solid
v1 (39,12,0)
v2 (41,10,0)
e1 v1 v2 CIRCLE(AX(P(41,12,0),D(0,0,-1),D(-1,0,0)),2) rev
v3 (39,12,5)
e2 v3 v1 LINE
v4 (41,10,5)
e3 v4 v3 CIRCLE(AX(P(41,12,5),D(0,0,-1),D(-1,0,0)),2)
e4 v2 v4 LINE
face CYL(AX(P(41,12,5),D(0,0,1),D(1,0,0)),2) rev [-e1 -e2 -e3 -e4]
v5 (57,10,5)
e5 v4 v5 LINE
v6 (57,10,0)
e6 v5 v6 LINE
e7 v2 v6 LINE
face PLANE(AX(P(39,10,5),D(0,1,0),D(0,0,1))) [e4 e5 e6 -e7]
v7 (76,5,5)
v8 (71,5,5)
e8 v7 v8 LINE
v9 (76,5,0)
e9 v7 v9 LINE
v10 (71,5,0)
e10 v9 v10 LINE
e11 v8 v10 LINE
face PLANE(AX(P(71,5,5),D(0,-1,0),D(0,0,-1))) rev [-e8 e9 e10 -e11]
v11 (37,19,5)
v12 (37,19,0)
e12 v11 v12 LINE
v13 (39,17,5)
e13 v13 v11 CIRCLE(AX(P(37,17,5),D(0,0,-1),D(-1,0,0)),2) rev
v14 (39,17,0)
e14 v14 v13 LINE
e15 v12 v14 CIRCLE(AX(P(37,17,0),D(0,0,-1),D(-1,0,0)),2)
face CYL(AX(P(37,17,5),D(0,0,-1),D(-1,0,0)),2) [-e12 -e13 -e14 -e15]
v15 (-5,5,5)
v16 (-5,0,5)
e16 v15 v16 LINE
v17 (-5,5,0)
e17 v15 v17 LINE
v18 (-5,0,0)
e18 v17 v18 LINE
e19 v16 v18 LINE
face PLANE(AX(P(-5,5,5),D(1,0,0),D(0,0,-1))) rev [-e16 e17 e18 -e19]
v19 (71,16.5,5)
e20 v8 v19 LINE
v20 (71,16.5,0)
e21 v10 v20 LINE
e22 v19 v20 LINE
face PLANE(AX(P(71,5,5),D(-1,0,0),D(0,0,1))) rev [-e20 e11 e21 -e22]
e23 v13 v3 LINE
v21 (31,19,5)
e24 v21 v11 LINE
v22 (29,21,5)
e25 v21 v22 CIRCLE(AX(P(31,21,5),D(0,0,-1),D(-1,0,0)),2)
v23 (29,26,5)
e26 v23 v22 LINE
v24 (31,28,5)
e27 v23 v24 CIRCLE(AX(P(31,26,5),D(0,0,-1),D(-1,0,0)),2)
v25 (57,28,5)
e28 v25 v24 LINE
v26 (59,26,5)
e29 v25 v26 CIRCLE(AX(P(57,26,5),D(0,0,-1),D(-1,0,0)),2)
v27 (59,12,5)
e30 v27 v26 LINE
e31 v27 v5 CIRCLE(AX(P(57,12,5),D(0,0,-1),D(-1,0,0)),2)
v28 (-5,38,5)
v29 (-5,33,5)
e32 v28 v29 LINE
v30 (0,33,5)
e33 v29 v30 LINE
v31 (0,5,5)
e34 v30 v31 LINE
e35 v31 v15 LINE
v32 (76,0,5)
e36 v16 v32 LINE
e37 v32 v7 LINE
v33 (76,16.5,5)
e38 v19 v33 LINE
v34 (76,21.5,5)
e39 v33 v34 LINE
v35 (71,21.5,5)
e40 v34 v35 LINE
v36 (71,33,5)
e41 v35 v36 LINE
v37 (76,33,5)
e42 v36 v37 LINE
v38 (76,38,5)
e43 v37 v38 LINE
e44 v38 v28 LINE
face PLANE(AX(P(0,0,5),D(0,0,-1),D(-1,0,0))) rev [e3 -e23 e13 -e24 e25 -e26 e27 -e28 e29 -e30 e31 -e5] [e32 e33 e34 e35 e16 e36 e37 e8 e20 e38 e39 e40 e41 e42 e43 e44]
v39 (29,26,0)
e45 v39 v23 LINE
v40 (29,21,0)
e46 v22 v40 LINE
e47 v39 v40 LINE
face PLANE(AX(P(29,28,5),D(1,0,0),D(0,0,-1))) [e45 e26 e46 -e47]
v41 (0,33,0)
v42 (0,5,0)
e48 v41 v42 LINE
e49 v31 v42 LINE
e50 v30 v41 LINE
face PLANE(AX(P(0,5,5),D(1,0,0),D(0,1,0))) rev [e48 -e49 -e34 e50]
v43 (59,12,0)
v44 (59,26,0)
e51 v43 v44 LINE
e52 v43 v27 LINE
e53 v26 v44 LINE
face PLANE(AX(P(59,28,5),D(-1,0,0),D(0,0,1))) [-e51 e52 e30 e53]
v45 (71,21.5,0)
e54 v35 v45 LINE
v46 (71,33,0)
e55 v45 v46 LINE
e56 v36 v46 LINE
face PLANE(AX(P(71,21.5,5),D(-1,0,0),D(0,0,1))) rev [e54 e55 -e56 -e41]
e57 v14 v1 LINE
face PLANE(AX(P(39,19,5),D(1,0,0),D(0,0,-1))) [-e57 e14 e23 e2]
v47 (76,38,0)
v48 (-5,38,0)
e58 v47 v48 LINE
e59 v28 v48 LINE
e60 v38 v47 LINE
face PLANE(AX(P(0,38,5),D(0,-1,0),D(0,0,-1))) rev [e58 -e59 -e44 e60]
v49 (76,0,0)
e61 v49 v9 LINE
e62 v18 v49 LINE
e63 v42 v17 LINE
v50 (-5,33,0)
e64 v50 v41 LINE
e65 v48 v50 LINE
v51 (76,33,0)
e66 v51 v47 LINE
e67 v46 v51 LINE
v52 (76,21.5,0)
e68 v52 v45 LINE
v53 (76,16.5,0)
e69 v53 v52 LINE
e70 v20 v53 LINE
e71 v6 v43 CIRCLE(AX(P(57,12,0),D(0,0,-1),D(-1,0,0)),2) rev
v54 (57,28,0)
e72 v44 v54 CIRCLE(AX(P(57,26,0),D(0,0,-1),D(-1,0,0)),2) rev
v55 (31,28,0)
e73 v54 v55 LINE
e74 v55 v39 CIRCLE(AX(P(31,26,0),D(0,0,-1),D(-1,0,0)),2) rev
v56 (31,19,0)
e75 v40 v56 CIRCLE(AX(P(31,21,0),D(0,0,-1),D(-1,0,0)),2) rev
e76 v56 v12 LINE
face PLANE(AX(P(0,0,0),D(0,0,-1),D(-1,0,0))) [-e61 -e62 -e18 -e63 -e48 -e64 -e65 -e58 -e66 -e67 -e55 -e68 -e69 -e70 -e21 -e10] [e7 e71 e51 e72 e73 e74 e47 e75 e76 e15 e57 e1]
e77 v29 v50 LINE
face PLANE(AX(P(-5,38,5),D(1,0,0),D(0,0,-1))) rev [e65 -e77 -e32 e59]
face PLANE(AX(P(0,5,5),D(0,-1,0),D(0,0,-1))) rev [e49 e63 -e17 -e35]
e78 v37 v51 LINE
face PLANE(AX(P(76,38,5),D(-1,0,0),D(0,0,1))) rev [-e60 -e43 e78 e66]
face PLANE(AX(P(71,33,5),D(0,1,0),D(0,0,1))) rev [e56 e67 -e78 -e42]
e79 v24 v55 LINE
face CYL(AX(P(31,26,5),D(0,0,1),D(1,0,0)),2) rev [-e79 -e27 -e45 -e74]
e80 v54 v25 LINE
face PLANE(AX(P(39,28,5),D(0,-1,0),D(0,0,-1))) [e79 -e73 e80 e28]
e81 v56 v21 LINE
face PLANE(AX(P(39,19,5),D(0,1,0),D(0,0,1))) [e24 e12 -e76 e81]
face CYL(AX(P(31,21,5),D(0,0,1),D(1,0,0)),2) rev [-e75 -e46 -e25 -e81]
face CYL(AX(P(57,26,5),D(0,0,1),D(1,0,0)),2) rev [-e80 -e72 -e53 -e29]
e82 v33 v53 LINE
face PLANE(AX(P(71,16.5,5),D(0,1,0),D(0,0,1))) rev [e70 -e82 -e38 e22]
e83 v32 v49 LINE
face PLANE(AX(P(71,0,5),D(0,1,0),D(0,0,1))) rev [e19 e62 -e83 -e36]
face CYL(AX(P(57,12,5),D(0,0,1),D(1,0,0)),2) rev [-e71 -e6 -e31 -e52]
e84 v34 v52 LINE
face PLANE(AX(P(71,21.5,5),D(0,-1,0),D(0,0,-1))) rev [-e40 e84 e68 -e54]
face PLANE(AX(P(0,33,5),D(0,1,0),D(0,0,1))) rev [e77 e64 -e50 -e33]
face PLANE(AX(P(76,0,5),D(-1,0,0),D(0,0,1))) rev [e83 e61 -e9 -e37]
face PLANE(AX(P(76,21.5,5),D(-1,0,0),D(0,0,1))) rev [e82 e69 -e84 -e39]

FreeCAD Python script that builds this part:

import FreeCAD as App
import Part
import Sketcher


def edges_at(feature, points):
    """Names of the edges that pass closest to the given points."""
    edges = feature.Shape.Edges
    near = lambda p: min(range(len(edges)), key=lambda i: edges[i].distToShape(Part.Vertex(*p))[0])
    return sorted({f"Edge{near(p) + 1}" for p in points})

doc = App.newDocument("Part")
body = doc.addObject("PartDesign::Body", "Body")

sketch1 = body.newObject("Sketcher::SketchObject", "Sketch")
sketch1.AttachmentSupport = (doc.getObject("XY_Plane"), [""])
sketch1.MapMode = "FlatFace"
sketch1.addGeometry([
    Part.LineSegment(App.Vector(76, 0, 0), App.Vector(76, 5, 0)),
    Part.LineSegment(App.Vector(76, 5, 0), App.Vector(71, 5, 0)),
    Part.LineSegment(App.Vector(71, 5, 0), App.Vector(71, 16, 0)),
    Part.LineSegment(App.Vector(71, 16, 0), App.Vector(76, 16, 0)),
    Part.LineSegment(App.Vector(76, 16, 0), App.Vector(76, 22, 0)),
    Part.LineSegment(App.Vector(76, 22, 0), App.Vector(71, 22, 0)),
    Part.LineSegment(App.Vector(71, 22, 0), App.Vector(71, 33, 0)),
    Part.LineSegment(App.Vector(71, 33, 0), App.Vector(76, 33, 0)),
    Part.LineSegment(App.Vector(76, 33, 0), App.Vector(76, 38, 0)),
    Part.LineSegment(App.Vector(76, 38, 0), App.Vector(-5, 38, 0)),
    Part.LineSegment(App.Vector(-5, 38, 0), App.Vector(-5, 33, 0)),
    Part.LineSegment(App.Vector(-5, 33, 0), App.Vector(0, 33, 0)),
    Part.LineSegment(App.Vector(0, 33, 0), App.Vector(0, 5, 0)),
    Part.LineSegment(App.Vector(0, 5, 0), App.Vector(-5, 5, 0)),
    Part.LineSegment(App.Vector(-5, 5, 0), App.Vector(-5, 0, 0)),
    Part.LineSegment(App.Vector(-5, 0, 0), App.Vector(76, 0, 0)),
    Part.LineSegment(App.Vector(29, 28, 0), App.Vector(59, 28, 0)),
    Part.LineSegment(App.Vector(59, 28, 0), App.Vector(59, 10, 0)),
    Part.LineSegment(App.Vector(59, 10, 0), App.Vector(39, 10, 0)),
    Part.LineSegment(App.Vector(39, 10, 0), App.Vector(39, 19, 0)),
    Part.LineSegment(App.Vector(39, 19, 0), App.Vector(29, 19, 0)),
    Part.LineSegment(App.Vector(29, 19, 0), App.Vector(29, 28, 0)),
], False)
sketch1.addConstraint([
    Sketcher.Constraint("Coincident", 0, 2, 1, 1),
    Sketcher.Constraint("Coincident", 1, 2, 2, 1),
    Sketcher.Constraint("Coincident", 2, 2, 3, 1),
    Sketcher.Constraint("Coincident", 3, 2, 4, 1),
    Sketcher.Constraint("Coincident", 4, 2, 5, 1),
    Sketcher.Constraint("Coincident", 5, 2, 6, 1),
    Sketcher.Constraint("Coincident", 6, 2, 7, 1),
    Sketcher.Constraint("Coincident", 7, 2, 8, 1),
    Sketcher.Constraint("Coincident", 8, 2, 9, 1),
    Sketcher.Constraint("Coincident", 9, 2, 10, 1),
    Sketcher.Constraint("Coincident", 10, 2, 11, 1),
    Sketcher.Constraint("Coincident", 11, 2, 12, 1),
    Sketcher.Constraint("Coincident", 12, 2, 13, 1),
    Sketcher.Constraint("Coincident", 13, 2, 14, 1),
    Sketcher.Constraint("Coincident", 14, 2, 15, 1),
    Sketcher.Constraint("Coincident", 15, 2, 0, 1),
    Sketcher.Constraint("Coincident", 16, 2, 17, 1),
    Sketcher.Constraint("Coincident", 17, 2, 18, 1),
    Sketcher.Constraint("Coincident", 18, 2, 19, 1),
    Sketcher.Constraint("Coincident", 19, 2, 20, 1),
    Sketcher.Constraint("Coincident", 20, 2, 21, 1),
    Sketcher.Constraint("Coincident", 21, 2, 16, 1),
    Sketcher.Constraint("Vertical", 0),
    Sketcher.Constraint("Horizontal", 1),
    Sketcher.Constraint("Vertical", 2),
    Sketcher.Constraint("Horizontal", 3),
    Sketcher.Constraint("Vertical", 4),
    Sketcher.Constraint("Horizontal", 5),
    Sketcher.Constraint("Vertical", 6),
    Sketcher.Constraint("Horizontal", 7),
    Sketcher.Constraint("Vertical", 8),
    Sketcher.Constraint("Horizontal", 9),
    Sketcher.Constraint("Vertical", 10),
    Sketcher.Constraint("Horizontal", 11),
    Sketcher.Constraint("Vertical", 12),
    Sketcher.Constraint("Horizontal", 13),
    Sketcher.Constraint("Vertical", 14),
    Sketcher.Constraint("Horizontal", 15),
    Sketcher.Constraint("Horizontal", 16),
    Sketcher.Constraint("Vertical", 17),
    Sketcher.Constraint("Horizontal", 18),
    Sketcher.Constraint("Vertical", 19),
    Sketcher.Constraint("Horizontal", 20),
    Sketcher.Constraint("Vertical", 21),
    Sketcher.Constraint("PointOnObject", 11, 2, -2),
    Sketcher.Constraint("PointOnObject", 14, 2, -1),
    Sketcher.Constraint("Horizontal", 7, 2, 10, 2),
    Sketcher.Constraint("Horizontal", 1, 2, 12, 2),
    Sketcher.Constraint("Vertical", 0, 2, 3, 2),
    Sketcher.Constraint("Vertical", 2, 2, 5, 2),
    Sketcher.Constraint("Vertical", 4, 2, 7, 2),
    Sketcher.Constraint("Vertical", 10, 2, 13, 2),
    Sketcher.Constraint("Equal", 7, 11),
    Sketcher.Constraint("Equal", 13, 0),
    Sketcher.Constraint("Equal", 0, 4),
    Sketcher.Constraint("Equal", 2, 6),
    Sketcher.Constraint("Equal", 4, 8),
    Sketcher.Constraint("Equal", 19, 21),
    Sketcher.Constraint("DistanceX", 1, 2, 1, 1, 5.0),
    Sketcher.Constraint("DistanceX", 9, 2, 9, 1, 81.0),
    Sketcher.Constraint("DistanceX", 16, 1, 16, 2, 30.0),
    Sketcher.Constraint("DistanceX", 18, 2, 18, 1, 20.0),
    Sketcher.Constraint("DistanceY", 12, 2, 12, 1, 28.0),
    Sketcher.Constraint("DistanceY", 17, 2, 17, 1, 18.0),
    Sketcher.Constraint("DistanceX", -1, 1, 16, 2, 59.0),
    Sketcher.Constraint("DistanceY", -1, 1, 16, 2, 28.0),
])
pad1 = body.newObject("PartDesign::Pad", "Pad")
pad1.Profile = sketch1
pad1.Length = 5
doc.recompute()

fillet = body.newObject("PartDesign::Fillet", "Fillet")
fillet.Base = (pad1, edges_at(pad1, [
    (29, 28, 2.5),
    (29, 19, 2.5),
    (39, 19, 2.5),
    (39, 10, 2.5),
    (59, 10, 2.5),
    (59, 28, 2.5),
]))
fillet.Radius = 2

doc.recompute()
